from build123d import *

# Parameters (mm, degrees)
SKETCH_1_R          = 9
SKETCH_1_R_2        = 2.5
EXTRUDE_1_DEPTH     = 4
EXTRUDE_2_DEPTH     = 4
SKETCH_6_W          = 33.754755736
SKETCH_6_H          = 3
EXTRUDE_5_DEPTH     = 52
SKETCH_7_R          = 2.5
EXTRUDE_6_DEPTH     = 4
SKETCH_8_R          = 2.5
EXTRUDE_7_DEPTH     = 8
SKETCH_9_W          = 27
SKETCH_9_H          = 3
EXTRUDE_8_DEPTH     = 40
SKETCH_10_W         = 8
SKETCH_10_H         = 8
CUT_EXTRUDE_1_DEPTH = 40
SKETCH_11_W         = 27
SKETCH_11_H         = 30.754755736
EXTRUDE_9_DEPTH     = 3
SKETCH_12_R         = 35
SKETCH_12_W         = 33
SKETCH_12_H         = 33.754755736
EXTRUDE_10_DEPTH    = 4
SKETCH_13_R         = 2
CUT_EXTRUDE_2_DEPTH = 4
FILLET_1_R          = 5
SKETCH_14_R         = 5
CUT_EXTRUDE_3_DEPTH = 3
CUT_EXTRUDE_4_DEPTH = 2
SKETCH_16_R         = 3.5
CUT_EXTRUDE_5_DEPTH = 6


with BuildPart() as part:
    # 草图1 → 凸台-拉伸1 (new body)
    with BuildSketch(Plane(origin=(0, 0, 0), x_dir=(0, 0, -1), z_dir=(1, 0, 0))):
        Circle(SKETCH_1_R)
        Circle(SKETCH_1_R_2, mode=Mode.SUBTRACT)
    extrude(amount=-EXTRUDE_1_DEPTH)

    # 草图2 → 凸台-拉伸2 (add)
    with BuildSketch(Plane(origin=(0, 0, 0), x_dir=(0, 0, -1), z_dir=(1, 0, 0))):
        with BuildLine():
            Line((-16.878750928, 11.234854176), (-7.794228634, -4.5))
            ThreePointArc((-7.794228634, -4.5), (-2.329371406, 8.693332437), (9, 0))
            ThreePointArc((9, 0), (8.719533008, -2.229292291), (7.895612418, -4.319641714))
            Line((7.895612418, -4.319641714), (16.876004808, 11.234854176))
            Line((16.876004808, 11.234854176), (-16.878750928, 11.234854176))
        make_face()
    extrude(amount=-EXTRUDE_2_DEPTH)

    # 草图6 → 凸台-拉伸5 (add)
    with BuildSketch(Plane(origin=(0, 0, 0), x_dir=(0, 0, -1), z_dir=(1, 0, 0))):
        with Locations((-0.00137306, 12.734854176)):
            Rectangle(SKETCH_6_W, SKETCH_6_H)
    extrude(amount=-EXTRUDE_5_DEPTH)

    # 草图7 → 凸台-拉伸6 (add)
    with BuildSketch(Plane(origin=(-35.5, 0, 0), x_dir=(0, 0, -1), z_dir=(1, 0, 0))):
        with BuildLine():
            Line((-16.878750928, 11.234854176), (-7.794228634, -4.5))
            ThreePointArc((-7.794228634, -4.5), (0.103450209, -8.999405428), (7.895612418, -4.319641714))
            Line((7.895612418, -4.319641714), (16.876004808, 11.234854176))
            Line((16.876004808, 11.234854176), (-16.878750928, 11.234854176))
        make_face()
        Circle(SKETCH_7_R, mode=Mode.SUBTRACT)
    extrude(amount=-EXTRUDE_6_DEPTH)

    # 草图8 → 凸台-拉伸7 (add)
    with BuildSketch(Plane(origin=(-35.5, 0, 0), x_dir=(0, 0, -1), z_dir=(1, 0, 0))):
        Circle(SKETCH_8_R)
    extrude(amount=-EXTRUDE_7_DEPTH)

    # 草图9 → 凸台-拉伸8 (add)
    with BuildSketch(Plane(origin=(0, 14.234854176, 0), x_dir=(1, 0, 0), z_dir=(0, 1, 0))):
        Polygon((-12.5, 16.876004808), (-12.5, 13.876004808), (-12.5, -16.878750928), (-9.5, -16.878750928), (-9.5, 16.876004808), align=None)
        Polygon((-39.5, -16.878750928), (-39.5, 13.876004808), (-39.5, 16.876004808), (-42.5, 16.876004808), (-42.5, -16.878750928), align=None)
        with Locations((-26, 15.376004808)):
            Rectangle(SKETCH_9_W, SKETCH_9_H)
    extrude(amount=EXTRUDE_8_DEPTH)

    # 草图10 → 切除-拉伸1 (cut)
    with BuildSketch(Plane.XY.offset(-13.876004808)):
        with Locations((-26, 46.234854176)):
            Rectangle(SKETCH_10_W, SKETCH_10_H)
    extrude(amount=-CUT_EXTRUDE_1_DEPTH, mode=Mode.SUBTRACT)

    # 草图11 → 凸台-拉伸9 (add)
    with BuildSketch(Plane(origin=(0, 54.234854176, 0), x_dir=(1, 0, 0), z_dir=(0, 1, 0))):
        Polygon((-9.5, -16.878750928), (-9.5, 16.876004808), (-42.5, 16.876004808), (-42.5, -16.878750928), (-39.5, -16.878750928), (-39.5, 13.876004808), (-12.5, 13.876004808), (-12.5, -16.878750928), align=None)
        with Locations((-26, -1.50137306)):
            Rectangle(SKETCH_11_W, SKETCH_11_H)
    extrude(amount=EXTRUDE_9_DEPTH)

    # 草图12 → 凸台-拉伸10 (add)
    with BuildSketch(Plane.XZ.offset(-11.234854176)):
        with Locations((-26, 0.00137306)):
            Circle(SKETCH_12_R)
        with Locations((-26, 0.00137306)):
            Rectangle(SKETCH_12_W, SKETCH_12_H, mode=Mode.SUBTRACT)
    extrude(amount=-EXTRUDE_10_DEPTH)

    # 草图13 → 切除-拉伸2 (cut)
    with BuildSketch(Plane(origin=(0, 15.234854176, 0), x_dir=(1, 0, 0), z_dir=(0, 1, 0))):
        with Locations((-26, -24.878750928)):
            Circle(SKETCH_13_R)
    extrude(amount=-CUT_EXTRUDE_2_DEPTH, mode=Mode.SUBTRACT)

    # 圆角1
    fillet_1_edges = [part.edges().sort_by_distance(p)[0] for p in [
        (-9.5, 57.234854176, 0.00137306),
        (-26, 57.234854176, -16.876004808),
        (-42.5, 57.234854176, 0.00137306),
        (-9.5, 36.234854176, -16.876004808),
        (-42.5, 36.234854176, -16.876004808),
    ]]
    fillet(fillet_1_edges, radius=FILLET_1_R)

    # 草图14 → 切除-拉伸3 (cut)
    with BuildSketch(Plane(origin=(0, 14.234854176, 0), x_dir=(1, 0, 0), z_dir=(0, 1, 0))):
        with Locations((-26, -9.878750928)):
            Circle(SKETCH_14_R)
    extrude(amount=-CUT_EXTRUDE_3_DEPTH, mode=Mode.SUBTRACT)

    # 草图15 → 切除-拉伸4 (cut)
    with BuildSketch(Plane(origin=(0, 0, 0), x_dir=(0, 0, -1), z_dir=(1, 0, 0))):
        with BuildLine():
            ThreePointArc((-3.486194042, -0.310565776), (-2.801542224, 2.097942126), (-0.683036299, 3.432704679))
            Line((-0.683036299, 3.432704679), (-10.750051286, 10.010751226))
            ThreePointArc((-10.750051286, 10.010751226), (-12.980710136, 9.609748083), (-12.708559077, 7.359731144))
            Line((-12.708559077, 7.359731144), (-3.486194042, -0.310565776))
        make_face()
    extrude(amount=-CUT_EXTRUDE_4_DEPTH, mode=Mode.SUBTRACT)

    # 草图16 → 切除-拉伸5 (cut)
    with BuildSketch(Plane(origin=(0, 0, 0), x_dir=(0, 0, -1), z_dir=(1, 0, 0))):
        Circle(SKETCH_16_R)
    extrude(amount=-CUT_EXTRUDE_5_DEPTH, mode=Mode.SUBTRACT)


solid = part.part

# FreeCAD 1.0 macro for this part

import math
import FreeCAD as App
import Part
import Sketcher
Q = App.Units.Quantity


def edges_at(feature, points):
    """Names of the edges that pass closest to the given points."""
    edges = feature.Shape.Edges
    near = lambda p: min(range(len(edges)), key=lambda i: edges[i].distToShape(Part.Vertex(*p))[0])
    return sorted({f"Edge{near(p) + 1}" for p in points})

doc = App.newDocument("Part")
body = doc.addObject("PartDesign::Body", "Body")

# Sketch on YZ plane
sketch1 = body.newObject("Sketcher::SketchObject", "Sketch")
sketch1.AttachmentSupport = (doc.getObject("YZ_Plane"), [""])
sketch1.MapMode = "FlatFace"
sketch1.addGeometry(Part.Circle(App.Vector(0, 0, 0), App.Vector(0, 0, 1), 9), False)
sketch1.addGeometry(Part.Circle(App.Vector(0, 0, 0), App.Vector(0, 0, 1), 2.5), False)
sketch1.addConstraint(Sketcher.Constraint("Coincident", 0, 3, -1, 1))
sketch1.addConstraint(Sketcher.Constraint("Coincident", 1, 3, -1, 1))
sketch1.addConstraint(Sketcher.Constraint("Diameter", 0, Q("18 mm")))
sketch1.addConstraint(Sketcher.Constraint("Diameter", 1, Q("5 mm")))
pad1 = body.newObject("PartDesign::Pad", "Pad")
pad1.Profile = sketch1
pad1.Length = 4
pad1.Reversed = True

# Sketch on YZ plane
sketch2 = body.newObject("Sketcher::SketchObject", "Sketch001")
sketch2.AttachmentSupport = (doc.getObject("YZ_Plane"), [""])
sketch2.MapMode = "FlatFace"
sketch2.addGeometry(Part.LineSegment(App.Vector(11.234854, 16.878751, 0), App.Vector(-4.5, 7.794229, 0)), False)
sketch2.addGeometry(Part.ArcOfCircle(Part.Circle(App.Vector(0, 0, 0), App.Vector(0, 0, 1), 9), math.radians(-90), math.radians(120)), False)
sketch2.addGeometry(Part.ArcOfCircle(Part.Circle(App.Vector(0, 0, 0), App.Vector(0, 0, 1), 9), math.radians(-118.682802), math.radians(-90)), False)
sketch2.addGeometry(Part.LineSegment(App.Vector(-4.319642, -7.895612, 0), App.Vector(11.234854, -16.876005, 0)), False)
sketch2.addGeometry(Part.LineSegment(App.Vector(11.234854, -16.876005, 0), App.Vector(11.234854, 16.878751, 0)), False)
sketch2.addConstraint(Sketcher.Constraint("Tangent", 0, 2, 1, 2))
sketch2.addConstraint(Sketcher.Constraint("Tangent", 1, 1, 2, 2))
sketch2.addConstraint(Sketcher.Constraint("Coincident", 2, 1, 3, 1))
sketch2.addConstraint(Sketcher.Constraint("Coincident", 3, 2, 4, 1))
sketch2.addConstraint(Sketcher.Constraint("Coincident", 4, 2, 0, 1))
sketch2.addConstraint(Sketcher.Constraint("Vertical", 4))
sketch2.addConstraint(Sketcher.Constraint("Coincident", 1, 3, -1, 1))
sketch2.addConstraint(Sketcher.Constraint("Equal", 1, 2))
sketch2.addConstraint(Sketcher.Constraint("PointOnObject", 1, 1, -2))
sketch2.addConstraint(Sketcher.Constraint("Radius", 1, Q("9 mm")))
sketch2.addConstraint(Sketcher.Constraint("Angle", 0, Q("-150 deg")))
sketch2.addConstraint(Sketcher.Constraint("Angle", 3, Q("-30 deg")))
sketch2.addConstraint(Sketcher.Constraint("DistanceY", 4, 1, 4, 2, Q("33.754756 mm")))
sketch2.addConstraint(Sketcher.Constraint("DistanceX", 2, 1, -1, 1, Q("4.319642 mm")))
pad2 = body.newObject("PartDesign::Pad", "Pad001")
pad2.Profile = sketch2
pad2.Length = 4
pad2.Reversed = True

# Sketch on YZ plane
sketch3 = body.newObject("Sketcher::SketchObject", "Sketch002")
sketch3.AttachmentSupport = (doc.getObject("YZ_Plane"), [""])
sketch3.MapMode = "FlatFace"
sketch3.addGeometry(Part.LineSegment(App.Vector(14.234854, 16.878751, 0), App.Vector(11.234854, 16.878751, 0)), False)
sketch3.addGeometry(Part.LineSegment(App.Vector(11.234854, 16.878751, 0), App.Vector(11.234854, -16.876005, 0)), False)
sketch3.addGeometry(Part.LineSegment(App.Vector(11.234854, -16.876005, 0), App.Vector(14.234854, -16.876005, 0)), False)
sketch3.addGeometry(Part.LineSegment(App.Vector(14.234854, -16.876005, 0), App.Vector(14.234854, 16.878751, 0)), False)
sketch3.addConstraint(Sketcher.Constraint("Coincident", 0, 2, 1, 1))
sketch3.addConstraint(Sketcher.Constraint("Coincident", 1, 2, 2, 1))
sketch3.addConstraint(Sketcher.Constraint("Coincident", 2, 2, 3, 1))
sketch3.addConstraint(Sketcher.Constraint("Coincident", 3, 2, 0, 1))
sketch3.addConstraint(Sketcher.Constraint("Horizontal", 0))
sketch3.addConstraint(Sketcher.Constraint("Vertical", 1))
sketch3.addConstraint(Sketcher.Constraint("Horizontal", 2))
sketch3.addConstraint(Sketcher.Constraint("Vertical", 3))
sketch3.addConstraint(Sketcher.Constraint("DistanceX", 0, 2, 0, 1, Q("3 mm")))
sketch3.addConstraint(Sketcher.Constraint("DistanceY", 1, 2, 1, 1, Q("33.754756 mm")))
sketch3.addConstraint(Sketcher.Constraint("DistanceY", -1, 1, 0, 2, Q("16.878751 mm")))
sketch3.addConstraint(Sketcher.Constraint("DistanceX", -1, 1, 0, 2, Q("11.234854 mm")))
pad3 = body.newObject("PartDesign::Pad", "Pad002")
pad3.Profile = sketch3
pad3.Length = 52
pad3.Reversed = True

# Sketch on YZ plane
sketch4 = body.newObject("Sketcher::SketchObject", "Sketch003")
sketch4.AttachmentSupport = (doc.getObject("YZ_Plane"), [""])
sketch4.MapMode = "FlatFace"
sketch4.AttachmentOffset = App.Placement(App.Vector(0, 0, -35.5), App.Rotation())
sketch4.addGeometry(Part.LineSegment(App.Vector(11.234854, 16.878751, 0), App.Vector(-4.5, 7.794229, 0)), False)
sketch4.addGeometry(Part.ArcOfCircle(Part.Circle(App.Vector(0, 0, 0), App.Vector(0, 0, 1), 9), math.radians(120), math.radians(241.317198)), False)
sketch4.addGeometry(Part.LineSegment(App.Vector(-4.319642, -7.895612, 0), App.Vector(11.234854, -16.876005, 0)), False)
sketch4.addGeometry(Part.LineSegment(App.Vector(11.234854, -16.876005, 0), App.Vector(11.234854, 16.878751, 0)), False)
sketch4.addGeometry(Part.Circle(App.Vector(0, 0, 0), App.Vector(0, 0, 1), 2.5), False)
sketch4.addConstraint(Sketcher.Constraint("Tangent", 0, 2, 1, 1))
sketch4.addConstraint(Sketcher.Constraint("Coincident", 1, 2, 2, 1))
sketch4.addConstraint(Sketcher.Constraint("Coincident", 2, 2, 3, 1))
sketch4.addConstraint(Sketcher.Constraint("Coincident", 3, 2, 0, 1))
sketch4.addConstraint(Sketcher.Constraint("Vertical", 3))
sketch4.addConstraint(Sketcher.Constraint("Coincident", 1, 3, -1, 1))
sketch4.addConstraint(Sketcher.Constraint("Coincident", 4, 3, -1, 1))
sketch4.addConstraint(Sketcher.Constraint("Diameter", 4, Q("5 mm")))
sketch4.addConstraint(Sketcher.Constraint("Radius", 1, Q("9 mm")))
sketch4.addConstraint(Sketcher.Constraint("Angle", 0, Q("-150 deg")))
sketch4.addConstraint(Sketcher.Constraint("Angle", 2, Q("-30 deg")))
sketch4.addConstraint(Sketcher.Constraint("DistanceY", 3, 1, 3, 2, Q("33.754756 mm")))
sketch4.addConstraint(Sketcher.Constraint("DistanceX", 1, 2, -1, 1, Q("4.319642 mm")))
pad4 = body.newObject("PartDesign::Pad", "Pad003")
pad4.Profile = sketch4
pad4.Length = 4
pad4.Reversed = True

# Sketch on YZ plane
sketch5 = body.newObject("Sketcher::SketchObject", "Sketch004")
sketch5.AttachmentSupport = (doc.getObject("YZ_Plane"), [""])
sketch5.MapMode = "FlatFace"
sketch5.AttachmentOffset = App.Placement(App.Vector(0, 0, -35.5), App.Rotation())
sketch5.addGeometry(Part.Circle(App.Vector(0, 0, 0), App.Vector(0, 0, 1), 2.5), False)
sketch5.addConstraint(Sketcher.Constraint("Coincident", 0, 3, -1, 1))
sketch5.addConstraint(Sketcher.Constraint("Diameter", 0, Q("5 mm")))
pad5 = body.newObject("PartDesign::Pad", "Pad004")
pad5.Profile = sketch5
pad5.Length = 8
pad5.Reversed = True

# Sketch on XZ plane
sketch6 = body.newObject("Sketcher::SketchObject", "Sketch005")
sketch6.AttachmentSupport = (doc.getObject("XZ_Plane"), [""])
sketch6.MapMode = "FlatFace"
sketch6.AttachmentOffset = App.Placement(App.Vector(0, 0, -14.234854), App.Rotation())
sketch6.addGeometry(Part.LineSegment(App.Vector(-12.5, -13.876005, 0), App.Vector(-12.5, 16.878751, 0)), False)
sketch6.addGeometry(Part.LineSegment(App.Vector(-12.5, 16.878751, 0), App.Vector(-9.5, 16.878751, 0)), False)
sketch6.addGeometry(Part.LineSegment(App.Vector(-9.5, 16.878751, 0), App.Vector(-9.5, -16.876005, 0)), False)
sketch6.addGeometry(Part.LineSegment(App.Vector(-9.5, -16.876005, 0), App.Vector(-42.5, -16.876005, 0)), False)
sketch6.addGeometry(Part.LineSegment(App.Vector(-42.5, -16.876005, 0), App.Vector(-42.5, 16.878751, 0)), False)
sketch6.addGeometry(Part.LineSegment(App.Vector(-42.5, 16.878751, 0), App.Vector(-39.5, 16.878751, 0)), False)
sketch6.addGeometry(Part.LineSegment(App.Vector(-39.5, 16.878751, 0), App.Vector(-39.5, -13.876005, 0)), False)
sketch6.addGeometry(Part.LineSegment(App.Vector(-39.5, -13.876005, 0), App.Vector(-12.5, -13.876005, 0)), False)
sketch6.addConstraint(Sketcher.Constraint("Coincident", 0, 2, 1, 1))
sketch6.addConstraint(Sketcher.Constraint("Coincident", 1, 2, 2, 1))
sketch6.addConstraint(Sketcher.Constraint("Coincident", 2, 2, 3, 1))
sketch6.addConstraint(Sketcher.Constraint("Coincident", 3, 2, 4, 1))
sketch6.addConstraint(Sketcher.Constraint("Coincident", 4, 2, 5, 1))
sketch6.addConstraint(Sketcher.Constraint("Coincident", 5, 2, 6, 1))
sketch6.addConstraint(Sketcher.Constraint("Coincident", 6, 2, 7, 1))
sketch6.addConstraint(Sketcher.Constraint("Coincident", 7, 2, 0, 1))
sketch6.addConstraint(Sketcher.Constraint("Vertical", 0))
sketch6.addConstraint(Sketcher.Constraint("Horizontal", 1))
sketch6.addConstraint(Sketcher.Constraint("Vertical", 2))
sketch6.addConstraint(Sketcher.Constraint("Horizontal", 3))
sketch6.addConstraint(Sketcher.Constraint("Vertical", 4))
sketch6.addConstraint(Sketcher.Constraint("Horizontal", 5))
sketch6.addConstraint(Sketcher.Constraint("Vertical", 6))
sketch6.addConstraint(Sketcher.Constraint("Horizontal", 7))
sketch6.addConstraint(Sketcher.Constraint("Horizontal", 1, 2, 4, 2))
sketch6.addConstraint(Sketcher.Constraint("Equal", 1, 5))
sketch6.addConstraint(Sketcher.Constraint("DistanceX", 1, 1, 1, 2, Q("3 mm")))
sketch6.addConstraint(Sketcher.Constraint("DistanceX", 3, 2, 3, 1, Q("33 mm")))
sketch6.addConstraint(Sketcher.Constraint("DistanceY", 3, 2, 6, 2, Q("3 mm")))
sketch6.addConstraint(Sketcher.Constraint("DistanceX", 0, 2, -1, 1, Q("12.5 mm")))
sketch6.addConstraint(Sketcher.Constraint("DistanceY", 0, 1, 0, 2, Q("30.754756 mm")))
sketch6.addConstraint(Sketcher.Constraint("DistanceY", -1, 1, 0, 2, Q("16.878751 mm")))
pad6 = body.newObject("PartDesign::Pad", "Pad005")
pad6.Profile = sketch6
pad6.Length = 40
pad6.Reversed = True

# Sketch on XY plane
sketch7 = body.newObject("Sketcher::SketchObject", "Sketch006")
sketch7.AttachmentSupport = (doc.getObject("XY_Plane"), [""])
sketch7.MapMode = "FlatFace"
sketch7.AttachmentOffset = App.Placement(App.Vector(0, 0, -13.876005), App.Rotation())
sketch7.addGeometry(Part.LineSegment(App.Vector(-30, 50.234854, 0), App.Vector(-30, 42.234854, 0)), False)
sketch7.addGeometry(Part.LineSegment(App.Vector(-30, 42.234854, 0), App.Vector(-22, 42.234854, 0)), False)
sketch7.addGeometry(Part.LineSegment(App.Vector(-22, 42.234854, 0), App.Vector(-22, 50.234854, 0)), False)
sketch7.addGeometry(Part.LineSegment(App.Vector(-22, 50.234854, 0), App.Vector(-30, 50.234854, 0)), False)
sketch7.addConstraint(Sketcher.Constraint("Coincident", 0, 2, 1, 1))
sketch7.addConstraint(Sketcher.Constraint("Coincident", 1, 2, 2, 1))
sketch7.addConstraint(Sketcher.Constraint("Coincident", 2, 2, 3, 1))
sketch7.addConstraint(Sketcher.Constraint("Coincident", 3, 2, 0, 1))
sketch7.addConstraint(Sketcher.Constraint("Vertical", 0))
sketch7.addConstraint(Sketcher.Constraint("Horizontal", 1))
sketch7.addConstraint(Sketcher.Constraint("Vertical", 2))
sketch7.addConstraint(Sketcher.Constraint("Horizontal", 3))
sketch7.addConstraint(Sketcher.Constraint("Equal", 3, 0))
sketch7.addConstraint(Sketcher.Constraint("DistanceX", 1, 1, 1, 2, Q("8 mm")))
sketch7.addConstraint(Sketcher.Constraint("DistanceX", 0, 2, -1, 1, Q("30 mm")))
sketch7.addConstraint(Sketcher.Constraint("DistanceY", -1, 1, 0, 2, Q("42.234854 mm")))
pocket1 = body.newObject("PartDesign::Pocket", "Pocket")
pocket1.Profile = sketch7
pocket1.Length = 40

# Sketch on XZ plane
sketch8 = body.newObject("Sketcher::SketchObject", "Sketch007")
sketch8.AttachmentSupport = (doc.getObject("XZ_Plane"), [""])
sketch8.MapMode = "FlatFace"
sketch8.AttachmentOffset = App.Placement(App.Vector(0, 0, -54.234854), App.Rotation())
sketch8.addGeometry(Part.LineSegment(App.Vector(-9.5, 16.878751, 0), App.Vector(-9.5, -16.876005, 0)), False)
sketch8.addGeometry(Part.LineSegment(App.Vector(-9.5, -16.876005, 0), App.Vector(-42.5, -16.876005, 0)), False)
sketch8.addGeometry(Part.LineSegment(App.Vector(-42.5, -16.876005, 0), App.Vector(-42.5, 16.878751, 0)), False)
sketch8.addGeometry(Part.LineSegment(App.Vector(-42.5, 16.878751, 0), App.Vector(-9.5, 16.878751, 0)), False)
sketch8.addConstraint(Sketcher.Constraint("Coincident", 0, 2, 1, 1))
sketch8.addConstraint(Sketcher.Constraint("Coincident", 1, 2, 2, 1))
sketch8.addConstraint(Sketcher.Constraint("Coincident", 2, 2, 3, 1))
sketch8.addConstraint(Sketcher.Constraint("Coincident", 3, 2, 0, 1))
sketch8.addConstraint(Sketcher.Constraint("Vertical", 0))
sketch8.addConstraint(Sketcher.Constraint("Horizontal", 1))
sketch8.addConstraint(Sketcher.Constraint("Vertical", 2))
sketch8.addConstraint(Sketcher.Constraint("Horizontal", 3))
sketch8.addConstraint(Sketcher.Constraint("DistanceX", 1, 2, 1, 1, Q("33 mm")))
sketch8.addConstraint(Sketcher.Constraint("DistanceX", 0, 2, -1, 1, Q("9.5 mm")))
sketch8.addConstraint(Sketcher.Constraint("DistanceY", 0, 2, 0, 1, Q("33.754756 mm")))
sketch8.addConstraint(Sketcher.Constraint("DistanceY", -1, 1, 2, 2, Q("16.878751 mm")))
pad7 = body.newObject("PartDesign::Pad", "Pad006")
pad7.Profile = sketch8
pad7.Length = 3
pad7.Reversed = True

# Sketch on XZ plane
sketch9 = body.newObject("Sketcher::SketchObject", "Sketch008")
sketch9.AttachmentSupport = (doc.getObject("XZ_Plane"), [""])
sketch9.MapMode = "FlatFace"
sketch9.AttachmentOffset = App.Placement(App.Vector(0, 0, -11.234854), App.Rotation())
sketch9.addGeometry(Part.Circle(App.Vector(-26, 0.001373, 0), App.Vector(0, 0, 1), 35), False)
sketch9.addGeometry(Part.LineSegment(App.Vector(-9.5, -16.876005, 0), App.Vector(-42.5, -16.876005, 0)), False)
sketch9.addGeometry(Part.LineSegment(App.Vector(-42.5, -16.876005, 0), App.Vector(-42.5, 16.878751, 0)), False)
sketch9.addGeometry(Part.LineSegment(App.Vector(-42.5, 16.878751, 0), App.Vector(-9.5, 16.878751, 0)), False)
sketch9.addGeometry(Part.LineSegment(App.Vector(-9.5, 16.878751, 0), App.Vector(-9.5, -16.876005, 0)), False)
sketch9.addConstraint(Sketcher.Constraint("Coincident", 1, 2, 2, 1))
sketch9.addConstraint(Sketcher.Constraint("Coincident", 2, 2, 3, 1))
sketch9.addConstraint(Sketcher.Constraint("Coincident", 3, 2, 4, 1))
sketch9.addConstraint(Sketcher.Constraint("Coincident", 4, 2, 1, 1))
sketch9.addConstraint(Sketcher.Constraint("Horizontal", 1))
sketch9.addConstraint(Sketcher.Constraint("Vertical", 2))
sketch9.addConstraint(Sketcher.Constraint("Horizontal", 3))
sketch9.addConstraint(Sketcher.Constraint("Vertical", 4))
sketch9.addConstraint(Sketcher.Constraint("Diameter", 0, Q("70 mm")))
sketch9.addConstraint(Sketcher.Constraint("DistanceX", 1, 2, 1, 1, Q("33 mm")))
sketch9.addConstraint(Sketcher.Constraint("DistanceX", 0, 3, -1, 1, Q("26 mm")))
sketch9.addConstraint(Sketcher.Constraint("DistanceX", 1, 2, -1, 1, Q("42.5 mm")))
sketch9.addConstraint(Sketcher.Constraint("DistanceY", 2, 1, 2, 2, Q("33.754756 mm")))
sketch9.addConstraint(Sketcher.Constraint("DistanceY", -1, 1, 2, 2, Q("16.878751 mm")))
sketch9.addConstraint(Sketcher.Constraint("DistanceY", -1, 1, 0, 3, Q("0.001373 mm")))
pad8 = body.newObject("PartDesign::Pad", "Pad007")
pad8.Profile = sketch9
pad8.Length = 4
pad8.Reversed = True

# Sketch on XZ plane
sketch10 = body.newObject("Sketcher::SketchObject", "Sketch009")
sketch10.AttachmentSupport = (doc.getObject("XZ_Plane"), [""])
sketch10.MapMode = "FlatFace"
sketch10.AttachmentOffset = App.Placement(App.Vector(0, 0, -15.234854), App.Rotation())
sketch10.addGeometry(Part.Circle(App.Vector(-26, 24.878751, 0), App.Vector(0, 0, 1), 2), False)
sketch10.addConstraint(Sketcher.Constraint("Diameter", 0, Q("4 mm")))
sketch10.addConstraint(Sketcher.Constraint("DistanceX", 0, 3, -1, 1, Q("26 mm")))
sketch10.addConstraint(Sketcher.Constraint("DistanceY", -1, 1, 0, 3, Q("24.878751 mm")))
pocket2 = body.newObject("PartDesign::Pocket", "Pocket001")
pocket2.Profile = sketch10
pocket2.Length = 4
pocket2.Reversed = True
doc.recompute()

fillet = body.newObject("PartDesign::Fillet", "Fillet")
fillet.Base = (pocket2, edges_at(pocket2, [
    (-9.5, 57.235, 0.001),
    (-26, 57.235, -16.876),
    (-42.5, 57.235, 0.001),
    (-9.5, 36.235, -16.876),
    (-42.5, 36.235, -16.876),
]))
fillet.Radius = 5

# Sketch on XZ plane
sketch11 = body.newObject("Sketcher::SketchObject", "Sketch010")
sketch11.AttachmentSupport = (doc.getObject("XZ_Plane"), [""])
sketch11.MapMode = "FlatFace"
sketch11.AttachmentOffset = App.Placement(App.Vector(0, 0, -14.234854), App.Rotation())
sketch11.addGeometry(Part.Circle(App.Vector(-26, 9.878751, 0), App.Vector(0, 0, 1), 5), False)
sketch11.addConstraint(Sketcher.Constraint("Diameter", 0, Q("10 mm")))
sketch11.addConstraint(Sketcher.Constraint("DistanceX", 0, 3, -1, 1, Q("26 mm")))
sketch11.addConstraint(Sketcher.Constraint("DistanceY", -1, 1, 0, 3, Q("9.878751 mm")))
pocket3 = body.newObject("PartDesign::Pocket", "Pocket002")
pocket3.Profile = sketch11
pocket3.Length = 3
pocket3.Reversed = True

# Sketch on YZ plane
sketch12 = body.newObject("Sketcher::SketchObject", "Sketch011")
sketch12.AttachmentSupport = (doc.getObject("YZ_Plane"), [""])
sketch12.MapMode = "FlatFace"
sketch12.addGeometry(Part.ArcOfCircle(Part.Circle(App.Vector(0, 0, 0), App.Vector(0, 0, 1), 3.5), math.radians(11.253675), math.radians(95.090726)), False)
sketch12.addGeometry(Part.LineSegment(App.Vector(3.432705, 0.683036, 0), App.Vector(10.010751, 10.750051, 0)), False)
sketch12.addGeometry(Part.ArcOfCircle(Part.Circle(App.Vector(8.628873, 11.653006, 0), App.Vector(0, 0, 1), 1.650731), math.radians(-33.161634), math.radians(140.249497)), False)
sketch12.addGeometry(Part.LineSegment(App.Vector(7.359731, 12.708559, 0), App.Vector(-0.310566, 3.486194, 0)), False)
sketch12.addConstraint(Sketcher.Constraint("Coincident", 0, 1, 1, 1))
sketch12.addConstraint(Sketcher.Constraint("Coincident", 1, 2, 2, 1))
sketch12.addConstraint(Sketcher.Constraint("Coincident", 2, 2, 3, 1))
sketch12.addConstraint(Sketcher.Constraint("Coincident", 3, 2, 0, 2))
sketch12.addConstraint(Sketcher.Constraint("Coincident", 0, 3, -1, 1))
sketch12.addConstraint(Sketcher.Constraint("Radius", 0, Q("3.5 mm")))
sketch12.addConstraint(Sketcher.Constraint("Radius", 2, Q("1.650731 mm")))
sketch12.addConstraint(Sketcher.Constraint("DistanceX", -1, 1, 1, 2, Q("10.010751 mm")))
sketch12.addConstraint(Sketcher.Constraint("DistanceY", -1, 1, 1, 2, Q("10.750051 mm")))
sketch12.addConstraint(Sketcher.Constraint("DistanceX", -1, 1, 2, 2, Q("7.359731 mm")))
sketch12.addConstraint(Sketcher.Constraint("DistanceY", -1, 1, 2, 2, Q("12.708559 mm")))
sketch12.addConstraint(Sketcher.Constraint("DistanceX", 0, 1, 2, 3, Q("5.196169 mm")))
sketch12.addConstraint(Sketcher.Constraint("DistanceX", 3, 2, 0, 1, Q("3.74327 mm")))
pocket4 = body.newObject("PartDesign::Pocket", "Pocket003")
pocket4.Profile = sketch12
pocket4.Length = 2

# Sketch on YZ plane
sketch13 = body.newObject("Sketcher::SketchObject", "Sketch012")
sketch13.AttachmentSupport = (doc.getObject("YZ_Plane"), [""])
sketch13.MapMode = "FlatFace"
sketch13.addGeometry(Part.Circle(App.Vector(0, 0, 0), App.Vector(0, 0, 1), 3.5), False)
sketch13.addConstraint(Sketcher.Constraint("Coincident", 0, 3, -1, 1))
sketch13.addConstraint(Sketcher.Constraint("Diameter", 0, Q("7 mm")))
pocket5 = body.newObject("PartDesign::Pocket", "Pocket004")
pocket5.Profile = sketch13
pocket5.Length = 6

doc.recompute()
